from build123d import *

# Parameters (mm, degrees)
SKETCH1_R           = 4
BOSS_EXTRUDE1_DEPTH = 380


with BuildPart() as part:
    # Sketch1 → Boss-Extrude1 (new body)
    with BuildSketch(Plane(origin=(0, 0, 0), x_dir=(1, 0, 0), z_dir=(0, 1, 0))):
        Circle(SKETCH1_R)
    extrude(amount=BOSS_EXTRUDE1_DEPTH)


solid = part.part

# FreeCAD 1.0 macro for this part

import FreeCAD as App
import Part
import Sketcher

V = App.Vector

doc = App.newDocument("Part")
body = doc.addObject("PartDesign::Body", "Body")

sketch1 = body.newObject("Sketcher::SketchObject", "Sketch")
sketch1.AttachmentSupport = (doc.getObject("XZ_Plane"), [""])
sketch1.MapMode = "FlatFace"
sketch1.addGeometry(Part.Circle(V(0, 0, 0), V(0, 0, 1), 4), False)
sketch1.addConstraint([
    Sketcher.Constraint("Coincident", 0, 3, -1, 1),
    Sketcher.Constraint("Diameter", 0, 8.0),
])
pad1 = body.newObject("PartDesign::Pad", "Pad")
pad1.Profile = sketch1
pad1.Length = 380
pad1.Reversed = True

doc.recompute()
